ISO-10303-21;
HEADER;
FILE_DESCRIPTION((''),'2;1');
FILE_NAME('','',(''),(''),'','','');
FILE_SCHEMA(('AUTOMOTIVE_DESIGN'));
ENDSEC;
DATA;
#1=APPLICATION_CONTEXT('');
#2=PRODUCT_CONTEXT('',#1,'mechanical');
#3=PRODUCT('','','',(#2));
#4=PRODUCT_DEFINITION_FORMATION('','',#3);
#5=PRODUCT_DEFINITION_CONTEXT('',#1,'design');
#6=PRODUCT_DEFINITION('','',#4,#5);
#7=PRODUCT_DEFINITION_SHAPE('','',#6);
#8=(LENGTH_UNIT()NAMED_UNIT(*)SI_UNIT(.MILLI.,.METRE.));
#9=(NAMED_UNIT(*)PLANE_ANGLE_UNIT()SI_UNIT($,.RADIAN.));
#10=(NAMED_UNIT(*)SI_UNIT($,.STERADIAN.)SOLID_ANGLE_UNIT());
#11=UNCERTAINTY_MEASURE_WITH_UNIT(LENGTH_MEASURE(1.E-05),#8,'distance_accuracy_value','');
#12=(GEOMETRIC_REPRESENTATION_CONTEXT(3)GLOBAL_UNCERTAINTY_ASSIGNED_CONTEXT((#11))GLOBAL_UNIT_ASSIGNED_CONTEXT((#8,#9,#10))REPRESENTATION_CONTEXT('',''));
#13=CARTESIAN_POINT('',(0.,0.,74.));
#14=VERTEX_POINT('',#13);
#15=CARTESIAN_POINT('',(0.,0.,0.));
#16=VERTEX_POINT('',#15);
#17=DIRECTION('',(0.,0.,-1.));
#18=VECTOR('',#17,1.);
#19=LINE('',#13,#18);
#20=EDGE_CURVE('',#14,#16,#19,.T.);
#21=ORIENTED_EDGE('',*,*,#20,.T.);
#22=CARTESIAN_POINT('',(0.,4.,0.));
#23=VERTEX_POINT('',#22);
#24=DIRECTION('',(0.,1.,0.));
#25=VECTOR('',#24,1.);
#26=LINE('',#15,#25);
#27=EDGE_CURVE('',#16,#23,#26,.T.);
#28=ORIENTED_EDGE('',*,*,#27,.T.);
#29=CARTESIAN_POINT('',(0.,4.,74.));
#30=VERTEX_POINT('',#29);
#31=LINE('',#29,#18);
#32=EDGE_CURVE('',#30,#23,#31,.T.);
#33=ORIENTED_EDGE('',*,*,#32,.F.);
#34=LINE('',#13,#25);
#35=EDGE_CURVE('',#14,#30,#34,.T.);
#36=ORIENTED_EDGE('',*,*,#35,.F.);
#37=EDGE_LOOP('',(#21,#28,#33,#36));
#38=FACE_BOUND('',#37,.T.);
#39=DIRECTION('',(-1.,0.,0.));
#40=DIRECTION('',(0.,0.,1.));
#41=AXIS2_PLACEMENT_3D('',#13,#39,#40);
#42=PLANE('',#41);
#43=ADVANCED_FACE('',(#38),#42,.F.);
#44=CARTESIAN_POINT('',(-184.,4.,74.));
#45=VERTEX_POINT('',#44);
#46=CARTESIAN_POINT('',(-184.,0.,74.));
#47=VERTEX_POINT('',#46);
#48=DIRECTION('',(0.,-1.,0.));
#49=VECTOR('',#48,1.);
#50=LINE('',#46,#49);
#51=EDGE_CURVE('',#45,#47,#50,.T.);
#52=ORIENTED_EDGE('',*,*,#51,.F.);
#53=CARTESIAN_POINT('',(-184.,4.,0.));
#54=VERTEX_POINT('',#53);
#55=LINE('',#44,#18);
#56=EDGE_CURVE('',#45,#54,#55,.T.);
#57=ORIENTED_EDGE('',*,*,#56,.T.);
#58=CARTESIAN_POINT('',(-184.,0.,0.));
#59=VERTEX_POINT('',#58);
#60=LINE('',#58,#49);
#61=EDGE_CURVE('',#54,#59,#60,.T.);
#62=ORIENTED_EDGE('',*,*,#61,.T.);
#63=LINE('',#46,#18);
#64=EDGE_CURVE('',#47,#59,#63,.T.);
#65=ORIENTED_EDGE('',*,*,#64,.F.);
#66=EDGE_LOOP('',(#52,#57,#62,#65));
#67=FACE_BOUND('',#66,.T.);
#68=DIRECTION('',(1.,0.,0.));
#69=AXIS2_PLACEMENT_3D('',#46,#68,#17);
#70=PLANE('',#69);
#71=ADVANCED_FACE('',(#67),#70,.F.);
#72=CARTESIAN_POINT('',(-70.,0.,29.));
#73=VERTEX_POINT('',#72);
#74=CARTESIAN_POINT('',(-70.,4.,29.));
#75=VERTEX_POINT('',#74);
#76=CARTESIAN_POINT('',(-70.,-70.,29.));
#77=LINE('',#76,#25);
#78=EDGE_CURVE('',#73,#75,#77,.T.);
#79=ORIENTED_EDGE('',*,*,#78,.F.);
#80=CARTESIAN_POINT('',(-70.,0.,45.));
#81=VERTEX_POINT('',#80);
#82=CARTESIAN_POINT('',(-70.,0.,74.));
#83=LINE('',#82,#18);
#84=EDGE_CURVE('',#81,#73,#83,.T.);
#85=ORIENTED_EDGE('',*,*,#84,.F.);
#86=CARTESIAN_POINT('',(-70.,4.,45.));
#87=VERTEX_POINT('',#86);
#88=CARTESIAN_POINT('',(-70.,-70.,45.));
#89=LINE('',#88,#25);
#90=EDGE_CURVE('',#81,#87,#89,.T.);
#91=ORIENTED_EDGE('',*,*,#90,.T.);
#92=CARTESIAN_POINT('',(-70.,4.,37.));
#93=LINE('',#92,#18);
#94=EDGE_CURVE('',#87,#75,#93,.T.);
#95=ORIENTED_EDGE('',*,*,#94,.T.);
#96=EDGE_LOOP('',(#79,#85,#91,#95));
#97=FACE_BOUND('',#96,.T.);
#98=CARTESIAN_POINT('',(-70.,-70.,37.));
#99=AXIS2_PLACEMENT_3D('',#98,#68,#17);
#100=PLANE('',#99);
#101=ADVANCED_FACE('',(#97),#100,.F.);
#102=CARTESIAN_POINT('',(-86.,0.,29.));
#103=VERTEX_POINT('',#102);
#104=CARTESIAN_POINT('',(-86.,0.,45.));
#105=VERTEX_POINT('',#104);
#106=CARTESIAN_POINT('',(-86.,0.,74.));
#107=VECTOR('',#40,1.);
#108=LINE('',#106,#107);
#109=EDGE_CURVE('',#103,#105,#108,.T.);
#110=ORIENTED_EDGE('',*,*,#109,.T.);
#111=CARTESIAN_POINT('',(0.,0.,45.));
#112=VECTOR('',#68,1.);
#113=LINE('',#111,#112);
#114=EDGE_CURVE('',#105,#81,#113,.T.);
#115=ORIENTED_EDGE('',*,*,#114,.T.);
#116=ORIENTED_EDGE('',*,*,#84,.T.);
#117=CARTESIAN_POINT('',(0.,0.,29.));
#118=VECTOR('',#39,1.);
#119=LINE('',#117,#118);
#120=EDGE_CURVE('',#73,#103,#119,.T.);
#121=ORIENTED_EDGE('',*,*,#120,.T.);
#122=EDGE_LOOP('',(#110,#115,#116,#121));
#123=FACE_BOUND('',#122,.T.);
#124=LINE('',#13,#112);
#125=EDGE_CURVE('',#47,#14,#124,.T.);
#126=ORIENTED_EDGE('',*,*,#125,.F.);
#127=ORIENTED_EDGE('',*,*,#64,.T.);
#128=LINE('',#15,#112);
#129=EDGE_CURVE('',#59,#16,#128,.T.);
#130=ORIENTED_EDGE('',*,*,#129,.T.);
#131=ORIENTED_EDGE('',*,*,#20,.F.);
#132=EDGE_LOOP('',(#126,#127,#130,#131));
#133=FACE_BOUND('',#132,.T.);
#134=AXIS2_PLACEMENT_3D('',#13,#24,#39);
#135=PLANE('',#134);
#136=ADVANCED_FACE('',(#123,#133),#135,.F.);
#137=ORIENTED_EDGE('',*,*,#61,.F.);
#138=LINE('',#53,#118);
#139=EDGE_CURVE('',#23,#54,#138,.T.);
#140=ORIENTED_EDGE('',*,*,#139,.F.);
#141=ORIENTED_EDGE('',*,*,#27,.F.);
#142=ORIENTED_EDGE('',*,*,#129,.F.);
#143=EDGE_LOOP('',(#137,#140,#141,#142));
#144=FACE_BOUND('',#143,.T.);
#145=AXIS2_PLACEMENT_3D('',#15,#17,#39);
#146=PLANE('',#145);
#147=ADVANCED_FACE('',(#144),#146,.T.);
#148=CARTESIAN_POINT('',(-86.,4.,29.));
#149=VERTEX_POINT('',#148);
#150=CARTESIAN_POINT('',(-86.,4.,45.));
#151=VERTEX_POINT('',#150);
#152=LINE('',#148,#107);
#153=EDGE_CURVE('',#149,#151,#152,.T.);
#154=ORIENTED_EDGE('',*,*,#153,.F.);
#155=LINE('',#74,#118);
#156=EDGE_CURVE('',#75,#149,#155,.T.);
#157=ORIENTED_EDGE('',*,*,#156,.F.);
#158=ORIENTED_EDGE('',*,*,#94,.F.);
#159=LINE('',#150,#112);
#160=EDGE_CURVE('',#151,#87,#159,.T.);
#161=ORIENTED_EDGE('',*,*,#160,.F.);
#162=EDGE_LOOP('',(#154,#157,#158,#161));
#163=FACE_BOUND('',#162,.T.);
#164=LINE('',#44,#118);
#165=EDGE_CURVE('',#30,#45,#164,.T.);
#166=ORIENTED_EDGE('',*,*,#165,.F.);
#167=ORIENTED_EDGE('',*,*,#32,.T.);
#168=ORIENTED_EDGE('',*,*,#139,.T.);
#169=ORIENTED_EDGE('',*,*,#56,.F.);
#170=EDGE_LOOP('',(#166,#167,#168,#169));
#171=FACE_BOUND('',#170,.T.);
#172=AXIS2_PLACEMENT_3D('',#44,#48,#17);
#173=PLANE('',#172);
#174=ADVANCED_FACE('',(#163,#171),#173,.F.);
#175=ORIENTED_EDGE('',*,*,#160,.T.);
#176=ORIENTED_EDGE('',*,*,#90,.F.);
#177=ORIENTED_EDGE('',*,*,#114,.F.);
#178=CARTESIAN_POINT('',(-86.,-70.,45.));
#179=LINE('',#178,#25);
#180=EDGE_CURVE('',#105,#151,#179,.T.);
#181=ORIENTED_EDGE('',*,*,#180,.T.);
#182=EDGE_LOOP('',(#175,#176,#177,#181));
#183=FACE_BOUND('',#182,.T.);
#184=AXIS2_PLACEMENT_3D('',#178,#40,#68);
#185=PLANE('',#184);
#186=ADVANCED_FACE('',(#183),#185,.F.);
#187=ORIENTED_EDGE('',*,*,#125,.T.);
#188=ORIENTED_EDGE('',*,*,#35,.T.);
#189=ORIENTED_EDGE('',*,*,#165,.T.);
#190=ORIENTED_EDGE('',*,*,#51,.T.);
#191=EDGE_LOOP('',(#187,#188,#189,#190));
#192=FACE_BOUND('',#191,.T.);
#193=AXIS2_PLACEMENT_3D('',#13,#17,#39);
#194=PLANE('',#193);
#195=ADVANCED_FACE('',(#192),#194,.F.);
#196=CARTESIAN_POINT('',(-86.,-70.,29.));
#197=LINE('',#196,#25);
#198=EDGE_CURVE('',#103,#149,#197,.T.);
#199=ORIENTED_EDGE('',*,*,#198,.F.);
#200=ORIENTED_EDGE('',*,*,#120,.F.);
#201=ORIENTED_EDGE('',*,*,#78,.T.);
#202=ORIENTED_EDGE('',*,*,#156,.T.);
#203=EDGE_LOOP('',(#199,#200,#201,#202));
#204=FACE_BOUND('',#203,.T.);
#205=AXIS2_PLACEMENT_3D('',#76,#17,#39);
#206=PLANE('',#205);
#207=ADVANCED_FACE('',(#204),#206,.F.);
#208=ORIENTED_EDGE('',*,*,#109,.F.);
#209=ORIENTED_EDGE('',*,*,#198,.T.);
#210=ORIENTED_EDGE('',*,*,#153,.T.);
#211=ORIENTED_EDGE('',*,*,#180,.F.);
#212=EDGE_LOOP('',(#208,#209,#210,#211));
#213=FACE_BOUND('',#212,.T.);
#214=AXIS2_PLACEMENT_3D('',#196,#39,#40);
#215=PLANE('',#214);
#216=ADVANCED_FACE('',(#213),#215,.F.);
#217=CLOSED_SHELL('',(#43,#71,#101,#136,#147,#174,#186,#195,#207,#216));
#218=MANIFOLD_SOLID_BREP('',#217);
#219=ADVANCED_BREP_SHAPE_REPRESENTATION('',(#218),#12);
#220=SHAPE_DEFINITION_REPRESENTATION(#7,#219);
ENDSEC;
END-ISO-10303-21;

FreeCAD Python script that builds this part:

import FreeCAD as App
import Part
import Sketcher

V = App.Vector


def add_polygon(sketch, points):
    """Adds a closed chain of lines whose ends are joined by coincident constraints."""
    first, n = sketch.GeometryCount, len(points)
    for a, b in zip(points, points[1:] + points[:1]):
        sketch.addGeometry(Part.LineSegment(App.Vector(*a, 0), App.Vector(*b, 0)), False)
    for i in range(n):
        sketch.addConstraint(Sketcher.Constraint("Coincident", first + i, 2, first + (i + 1) % n, 1))

doc = App.newDocument("Part")
body = doc.addObject("PartDesign::Body", "Body")

# Sketch on XY plane
sketch1 = doc.addObject("Sketcher::SketchObject", "Sketch")
body.addObject(sketch1)
sketch1.AttachmentSupport = (doc.XY_Plane, [""])
sketch1.MapMode = "FlatFace"
add_polygon(sketch1, [(-184, 4), (-184, 0), (0, 0), (0, 4)])  # lines 0-3
sketch1.addConstraint(Sketcher.Constraint("Vertical", 0))
sketch1.addConstraint(Sketcher.Constraint("Horizontal", 1))
sketch1.addConstraint(Sketcher.Constraint("Vertical", 2))
sketch1.addConstraint(Sketcher.Constraint("Horizontal", 3))
sketch1.addConstraint(Sketcher.Constraint("Coincident", 1, 2, -1, 1))
sketch1.addConstraint(Sketcher.Constraint("DistanceX", 1, 1, 1, 2, 184.0))
sketch1.addConstraint(Sketcher.Constraint("DistanceY", 0, 2, 0, 1, 4.0))
pad1 = doc.addObject("PartDesign::Pad", "Pad")
body.addObject(pad1)
pad1.Profile = sketch1
pad1.Length = 74

# Sketch on XZ plane
sketch2 = doc.addObject("Sketcher::SketchObject", "Sketch001")
body.addObject(sketch2)
sketch2.AttachmentSupport = (doc.XZ_Plane, [""])
sketch2.MapMode = "FlatFace"
sketch2.AttachmentOffset = App.Placement(V(0, 0, -4), App.Rotation())
add_polygon(sketch2, [(-70, 29), (-86, 29), (-86, 45), (-70, 45)])  # lines 0-3
sketch2.addConstraint(Sketcher.Constraint("Horizontal", 0))
sketch2.addConstraint(Sketcher.Constraint("Vertical", 1))
sketch2.addConstraint(Sketcher.Constraint("Horizontal", 2))
sketch2.addConstraint(Sketcher.Constraint("Vertical", 3))
sketch2.addConstraint(Sketcher.Constraint("Equal", 2, 1))
sketch2.addConstraint(Sketcher.Constraint("DistanceX", 0, 2, 0, 1, 16.0))
sketch2.addConstraint(Sketcher.Constraint("DistanceX", 0, 2, -1, 1, 86.0))
sketch2.addConstraint(Sketcher.Constraint("DistanceY", -1, 1, 0, 2, 29.0))
pocket1 = doc.addObject("PartDesign::Pocket", "Pocket")
body.addObject(pocket1)
pocket1.Profile = sketch2
pocket1.Length = 74
pocket1.Reversed = True

doc.recompute()
